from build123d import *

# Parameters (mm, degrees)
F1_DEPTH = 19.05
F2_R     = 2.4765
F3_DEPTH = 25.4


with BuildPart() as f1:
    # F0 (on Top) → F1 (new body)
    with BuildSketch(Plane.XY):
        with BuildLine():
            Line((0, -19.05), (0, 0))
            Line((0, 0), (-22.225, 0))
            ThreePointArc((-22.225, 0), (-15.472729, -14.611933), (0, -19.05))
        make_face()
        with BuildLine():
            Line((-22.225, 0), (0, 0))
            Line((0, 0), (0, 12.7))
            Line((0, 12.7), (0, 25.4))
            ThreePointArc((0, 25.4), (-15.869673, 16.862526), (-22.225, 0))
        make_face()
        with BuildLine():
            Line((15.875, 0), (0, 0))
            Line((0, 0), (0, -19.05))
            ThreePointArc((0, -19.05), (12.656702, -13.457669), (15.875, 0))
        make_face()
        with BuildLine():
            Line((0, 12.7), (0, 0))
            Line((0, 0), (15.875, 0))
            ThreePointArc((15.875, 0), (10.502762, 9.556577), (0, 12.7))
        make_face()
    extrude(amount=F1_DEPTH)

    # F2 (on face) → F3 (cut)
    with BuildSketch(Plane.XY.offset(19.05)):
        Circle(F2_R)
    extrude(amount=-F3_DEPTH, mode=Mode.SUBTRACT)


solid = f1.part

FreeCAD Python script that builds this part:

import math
import FreeCAD as App
import Part
import Sketcher

V = App.Vector
Q = App.Units.Quantity

doc = App.newDocument("Part")
body = doc.addObject("PartDesign::Body", "Body")

# Sketch on XY plane
sketch1 = body.newObject("Sketcher::SketchObject", "Sketch")
sketch1.AttachmentSupport = (doc.getObject("XY_Plane"), [""])
sketch1.MapMode = "FlatFace"
sketch1.addGeometry([
    Part.LineSegment(V(0, 13, 0), V(0, 25, 0)),  # 0
    Part.ArcOfCircle(Part.Circle(V(3, 0, 0), V(0, 0, 1), 26), math.radians(98), math.radians(180)),  # 1
    Part.ArcOfCircle(Part.Circle(V(-3, 0, 0), V(0, 0, 1), 19), math.radians(-180), math.radians(-81)),  # 2
    Part.ArcOfCircle(Part.Circle(V(1, -3, 0), V(0, 0, 1), 16), math.radians(-93), math.radians(13)),  # 3
    Part.ArcOfCircle(Part.Circle(V(1, -2, 0), V(0, 0, 1), 15), math.radians(7), math.radians(95)),  # 4
], False)
sketch1.addConstraint([
    Sketcher.Constraint("Coincident", 0, 2, 1, 1),
    Sketcher.Constraint("Coincident", 1, 2, 2, 1),
    Sketcher.Constraint("Coincident", 2, 2, 3, 1),
    Sketcher.Constraint("Coincident", 3, 2, 4, 1),
    Sketcher.Constraint("Coincident", 4, 2, 0, 1),
    Sketcher.Constraint("Vertical", 0),
    Sketcher.Constraint("PointOnObject", 0, 2, -2),
    Sketcher.Constraint("PointOnObject", 1, 2, -1),
    Sketcher.Constraint("PointOnObject", 2, 2, -2),
    Sketcher.Constraint("PointOnObject", 3, 2, -1),
    Sketcher.Constraint("DistanceY", 0, 1, 0, 2, Q("0.5 in")),
    Sketcher.Constraint("DistanceY", -1, 1, 0, 2, Q("1 in")),
    Sketcher.Constraint("DistanceY", 2, 2, -1, 1, Q("0.75 in")),
    Sketcher.Constraint("DistanceX", 1, 2, -1, 1, Q("0.875 in")),
    Sketcher.Constraint("DistanceX", -1, 1, 3, 2, Q("0.625 in")),
    Sketcher.Constraint("Radius", 1, 25.686262),
    Sketcher.Constraint("Radius", 2, 19.336279),
    Sketcher.Constraint("Radius", 3, 15.58404),
    Sketcher.Constraint("Radius", 4, 14.634285),
])
pad1 = body.newObject("PartDesign::Pad", "Pad")
pad1.Profile = sketch1
pad1.Length = Q("0.75 in")

# Sketch on XY plane
sketch2 = body.newObject("Sketcher::SketchObject", "Sketch001")
sketch2.AttachmentSupport = (doc.getObject("XY_Plane"), [""])
sketch2.MapMode = "FlatFace"
sketch2.AttachmentOffset = App.Placement(V(0, 0, 0.75 * 25.4), App.Rotation())
sketch2.addGeometry(Part.Circle(V(0, 0, 0), V(0, 0, 1), 2.5), False)
sketch2.addConstraint([
    Sketcher.Constraint("Coincident", 0, 3, -1, 1),
    Sketcher.Constraint("Diameter", 0, Q("0.195 in")),
])
pocket1 = body.newObject("PartDesign::Pocket", "Pocket")
pocket1.Profile = sketch2
pocket1.Length = Q("1 in")

doc.recompute()
